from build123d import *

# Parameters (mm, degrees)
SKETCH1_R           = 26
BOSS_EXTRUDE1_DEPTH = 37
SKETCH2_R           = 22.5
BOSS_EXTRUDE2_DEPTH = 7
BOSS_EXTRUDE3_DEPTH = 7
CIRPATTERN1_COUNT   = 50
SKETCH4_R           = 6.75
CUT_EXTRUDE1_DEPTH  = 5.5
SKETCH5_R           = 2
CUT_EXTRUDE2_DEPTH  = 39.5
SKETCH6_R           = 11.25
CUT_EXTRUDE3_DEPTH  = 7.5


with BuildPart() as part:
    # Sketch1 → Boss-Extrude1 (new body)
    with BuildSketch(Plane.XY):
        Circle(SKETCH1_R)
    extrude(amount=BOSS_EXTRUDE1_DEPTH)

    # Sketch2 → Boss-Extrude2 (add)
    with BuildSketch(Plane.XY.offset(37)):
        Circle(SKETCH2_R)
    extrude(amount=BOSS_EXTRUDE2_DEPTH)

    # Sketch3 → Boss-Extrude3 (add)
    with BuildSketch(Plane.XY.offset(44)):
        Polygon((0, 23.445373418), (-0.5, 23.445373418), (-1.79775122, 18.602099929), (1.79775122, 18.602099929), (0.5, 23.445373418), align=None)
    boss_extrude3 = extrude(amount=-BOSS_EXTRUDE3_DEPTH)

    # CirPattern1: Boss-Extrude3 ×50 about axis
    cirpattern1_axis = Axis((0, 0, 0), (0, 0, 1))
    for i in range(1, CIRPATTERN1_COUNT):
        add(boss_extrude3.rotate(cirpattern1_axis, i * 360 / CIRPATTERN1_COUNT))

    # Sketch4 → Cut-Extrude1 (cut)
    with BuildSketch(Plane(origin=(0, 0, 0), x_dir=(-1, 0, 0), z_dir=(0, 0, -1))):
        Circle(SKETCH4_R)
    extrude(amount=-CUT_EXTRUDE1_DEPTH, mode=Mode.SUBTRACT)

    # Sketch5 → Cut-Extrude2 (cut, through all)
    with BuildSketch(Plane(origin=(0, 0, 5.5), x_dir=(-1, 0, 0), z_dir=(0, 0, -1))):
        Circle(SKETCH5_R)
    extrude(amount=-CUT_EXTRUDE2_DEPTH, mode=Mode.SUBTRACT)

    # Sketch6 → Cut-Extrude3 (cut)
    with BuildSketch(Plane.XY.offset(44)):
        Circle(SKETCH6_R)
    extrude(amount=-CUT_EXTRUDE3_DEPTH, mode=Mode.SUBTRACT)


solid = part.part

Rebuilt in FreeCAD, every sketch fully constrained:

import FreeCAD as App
import Part
import Sketcher
Q = App.Units.Quantity


def add_polygon(sketch, points):
    """Adds a closed chain of lines whose ends are joined by coincident constraints."""
    first, n = sketch.GeometryCount, len(points)
    for a, b in zip(points, points[1:] + points[:1]):
        sketch.addGeometry(Part.LineSegment(App.Vector(*a, 0), App.Vector(*b, 0)), False)
    for i in range(n):
        sketch.addConstraint(Sketcher.Constraint("Coincident", first + i, 2, first + (i + 1) % n, 1))

doc = App.newDocument("Part")
params = doc.addObject("Spreadsheet::Sheet", "Params")
for row, (alias, value) in enumerate([
    ("sketch1_diameter", "52 mm"),
    ("pad1_length", "37 mm"),
    ("sketch2_diameter", "45 mm"),
    ("pad2_length", "7 mm"),
    ("sketch3_width", "1 mm"),
    ("pad3_length", "7 mm"),
    ("sketch4_diameter", "13.5 mm"),
    ("pocket1_length", "5.5 mm"),
    ("sketch5_diameter", "4 mm"),
    ("sketch6_diameter", "22.5 mm"),
    ("pocket3_length", "7.5 mm"),
], start=1):
    params.set(f"A{row}", alias)
    params.set(f"B{row}", "=" + value)
    params.setAlias(f"B{row}", alias)

body = doc.addObject("PartDesign::Body", "Body")

# Sketch on XY plane
sketch1 = body.newObject("Sketcher::SketchObject", "Sketch")
sketch1.AttachmentSupport = (doc.getObject("XY_Plane"), [""])
sketch1.MapMode = "FlatFace"
sketch1.addGeometry(Part.Circle(App.Vector(0, 0, 0), App.Vector(0, 0, 1), 26), False)
sketch1.addConstraint([
    Sketcher.Constraint("Coincident", 0, 3, -1, 1),
    Sketcher.Constraint("Diameter", 0, Q("52 mm")),
])
sketch1.setExpression("Constraints[1]", "Params.sketch1_diameter")
pad1 = body.newObject("PartDesign::Pad", "Pad")
pad1.Profile = sketch1
pad1.setExpression("Length", "Params.pad1_length")

# Sketch on XY plane
sketch2 = body.newObject("Sketcher::SketchObject", "Sketch001")
sketch2.AttachmentSupport = (doc.getObject("XY_Plane"), [""])
sketch2.MapMode = "FlatFace"
sketch2.AttachmentOffset = App.Placement(App.Vector(0, 0, 37), App.Rotation())
sketch2.addGeometry(Part.Circle(App.Vector(0, 0, 0), App.Vector(0, 0, 1), 22), False)
sketch2.addConstraint([
    Sketcher.Constraint("Coincident", 0, 3, -1, 1),
    Sketcher.Constraint("Diameter", 0, Q("45 mm")),
])
sketch2.setExpression("Constraints[1]", "Params.sketch2_diameter")
pad2 = body.newObject("PartDesign::Pad", "Pad001")
pad2.Profile = sketch2
pad2.setExpression("Length", "Params.pad2_length")

# Sketch on XY plane
sketch3 = body.newObject("Sketcher::SketchObject", "Sketch002")
sketch3.AttachmentSupport = (doc.getObject("XY_Plane"), [""])
sketch3.MapMode = "FlatFace"
sketch3.AttachmentOffset = App.Placement(App.Vector(0, 0, 44), App.Rotation())
add_polygon(sketch3, [(-0.5, 23.4), (-1.8, 18.6), (1.8, 18.6), (0.5, 23.4)])  # lines 0-3
sketch3.addConstraint([
    Sketcher.Constraint("Horizontal", 1),
    Sketcher.Constraint("Horizontal", 3),
    Sketcher.Constraint("Equal", 0, 2),
    Sketcher.Constraint("DistanceX", 3, 2, 3, 1, Q("1 mm")),
    Sketcher.Constraint("Angle", 0, Q("-105 deg")),
    Sketcher.Constraint("DistanceX", -1, 1, 2, 2, Q("0.5 mm")),
    Sketcher.Constraint("DistanceY", -1, 1, 0, 2, Q("18.6021 mm")),
    Sketcher.Constraint("DistanceX", 1, 1, 1, 2, Q("3.595502 mm")),
])
sketch3.setExpression("Constraints[7]", "Params.sketch3_width")
pad3 = body.newObject("PartDesign::Pad", "Pad002")
pad3.Profile = sketch3
pad3.setExpression("Length", "Params.pad3_length")
pad3.Reversed = True
doc.recompute()

polarpattern = body.newObject("PartDesign::PolarPattern", "PolarPattern")
polarpattern.Originals = [pad3]
polarpattern.Axis = (doc.getObject("Z_Axis"), [""])
polarpattern.Angle = 360
polarpattern.Occurrences = 50
body.Tip = polarpattern

# Sketch on XY plane
sketch4 = body.newObject("Sketcher::SketchObject", "Sketch003")
sketch4.AttachmentSupport = (doc.getObject("XY_Plane"), [""])
sketch4.MapMode = "FlatFace"
sketch4.addGeometry(Part.Circle(App.Vector(0, 0, 0), App.Vector(0, 0, 1), 7), False)
sketch4.addConstraint([
    Sketcher.Constraint("Coincident", 0, 3, -1, 1),
    Sketcher.Constraint("Diameter", 0, Q("13.5 mm")),
])
sketch4.setExpression("Constraints[1]", "Params.sketch4_diameter")
pocket1 = body.newObject("PartDesign::Pocket", "Pocket")
pocket1.Profile = sketch4
pocket1.setExpression("Length", "Params.pocket1_length")
pocket1.Reversed = True

# Sketch on XY plane
sketch5 = body.newObject("Sketcher::SketchObject", "Sketch004")
sketch5.AttachmentSupport = (doc.getObject("XY_Plane"), [""])
sketch5.MapMode = "FlatFace"
sketch5.AttachmentOffset = App.Placement(App.Vector(0, 0, 5.5), App.Rotation())
sketch5.addGeometry(Part.Circle(App.Vector(0, 0, 0), App.Vector(0, 0, 1), 2), False)
sketch5.addConstraint([
    Sketcher.Constraint("Coincident", 0, 3, -1, 1),
    Sketcher.Constraint("Diameter", 0, Q("4 mm")),
])
sketch5.setExpression("Constraints[1]", "Params.sketch5_diameter")
pocket2 = body.newObject("PartDesign::Pocket", "Pocket001")
pocket2.Profile = sketch5
pocket2.Type = "ThroughAll"
pocket2.Reversed = True

# Sketch on XY plane
sketch6 = body.newObject("Sketcher::SketchObject", "Sketch005")
sketch6.AttachmentSupport = (doc.getObject("XY_Plane"), [""])
sketch6.MapMode = "FlatFace"
sketch6.AttachmentOffset = App.Placement(App.Vector(0, 0, 44), App.Rotation())
sketch6.addGeometry(Part.Circle(App.Vector(0, 0, 0), App.Vector(0, 0, 1), 11), False)
sketch6.addConstraint([
    Sketcher.Constraint("Coincident", 0, 3, -1, 1),
    Sketcher.Constraint("Diameter", 0, Q("22.5 mm")),
])
sketch6.setExpression("Constraints[1]", "Params.sketch6_diameter")
pocket3 = body.newObject("PartDesign::Pocket", "Pocket002")
pocket3.Profile = sketch6
pocket3.setExpression("Length", "Params.pocket3_length")

doc.recompute()
